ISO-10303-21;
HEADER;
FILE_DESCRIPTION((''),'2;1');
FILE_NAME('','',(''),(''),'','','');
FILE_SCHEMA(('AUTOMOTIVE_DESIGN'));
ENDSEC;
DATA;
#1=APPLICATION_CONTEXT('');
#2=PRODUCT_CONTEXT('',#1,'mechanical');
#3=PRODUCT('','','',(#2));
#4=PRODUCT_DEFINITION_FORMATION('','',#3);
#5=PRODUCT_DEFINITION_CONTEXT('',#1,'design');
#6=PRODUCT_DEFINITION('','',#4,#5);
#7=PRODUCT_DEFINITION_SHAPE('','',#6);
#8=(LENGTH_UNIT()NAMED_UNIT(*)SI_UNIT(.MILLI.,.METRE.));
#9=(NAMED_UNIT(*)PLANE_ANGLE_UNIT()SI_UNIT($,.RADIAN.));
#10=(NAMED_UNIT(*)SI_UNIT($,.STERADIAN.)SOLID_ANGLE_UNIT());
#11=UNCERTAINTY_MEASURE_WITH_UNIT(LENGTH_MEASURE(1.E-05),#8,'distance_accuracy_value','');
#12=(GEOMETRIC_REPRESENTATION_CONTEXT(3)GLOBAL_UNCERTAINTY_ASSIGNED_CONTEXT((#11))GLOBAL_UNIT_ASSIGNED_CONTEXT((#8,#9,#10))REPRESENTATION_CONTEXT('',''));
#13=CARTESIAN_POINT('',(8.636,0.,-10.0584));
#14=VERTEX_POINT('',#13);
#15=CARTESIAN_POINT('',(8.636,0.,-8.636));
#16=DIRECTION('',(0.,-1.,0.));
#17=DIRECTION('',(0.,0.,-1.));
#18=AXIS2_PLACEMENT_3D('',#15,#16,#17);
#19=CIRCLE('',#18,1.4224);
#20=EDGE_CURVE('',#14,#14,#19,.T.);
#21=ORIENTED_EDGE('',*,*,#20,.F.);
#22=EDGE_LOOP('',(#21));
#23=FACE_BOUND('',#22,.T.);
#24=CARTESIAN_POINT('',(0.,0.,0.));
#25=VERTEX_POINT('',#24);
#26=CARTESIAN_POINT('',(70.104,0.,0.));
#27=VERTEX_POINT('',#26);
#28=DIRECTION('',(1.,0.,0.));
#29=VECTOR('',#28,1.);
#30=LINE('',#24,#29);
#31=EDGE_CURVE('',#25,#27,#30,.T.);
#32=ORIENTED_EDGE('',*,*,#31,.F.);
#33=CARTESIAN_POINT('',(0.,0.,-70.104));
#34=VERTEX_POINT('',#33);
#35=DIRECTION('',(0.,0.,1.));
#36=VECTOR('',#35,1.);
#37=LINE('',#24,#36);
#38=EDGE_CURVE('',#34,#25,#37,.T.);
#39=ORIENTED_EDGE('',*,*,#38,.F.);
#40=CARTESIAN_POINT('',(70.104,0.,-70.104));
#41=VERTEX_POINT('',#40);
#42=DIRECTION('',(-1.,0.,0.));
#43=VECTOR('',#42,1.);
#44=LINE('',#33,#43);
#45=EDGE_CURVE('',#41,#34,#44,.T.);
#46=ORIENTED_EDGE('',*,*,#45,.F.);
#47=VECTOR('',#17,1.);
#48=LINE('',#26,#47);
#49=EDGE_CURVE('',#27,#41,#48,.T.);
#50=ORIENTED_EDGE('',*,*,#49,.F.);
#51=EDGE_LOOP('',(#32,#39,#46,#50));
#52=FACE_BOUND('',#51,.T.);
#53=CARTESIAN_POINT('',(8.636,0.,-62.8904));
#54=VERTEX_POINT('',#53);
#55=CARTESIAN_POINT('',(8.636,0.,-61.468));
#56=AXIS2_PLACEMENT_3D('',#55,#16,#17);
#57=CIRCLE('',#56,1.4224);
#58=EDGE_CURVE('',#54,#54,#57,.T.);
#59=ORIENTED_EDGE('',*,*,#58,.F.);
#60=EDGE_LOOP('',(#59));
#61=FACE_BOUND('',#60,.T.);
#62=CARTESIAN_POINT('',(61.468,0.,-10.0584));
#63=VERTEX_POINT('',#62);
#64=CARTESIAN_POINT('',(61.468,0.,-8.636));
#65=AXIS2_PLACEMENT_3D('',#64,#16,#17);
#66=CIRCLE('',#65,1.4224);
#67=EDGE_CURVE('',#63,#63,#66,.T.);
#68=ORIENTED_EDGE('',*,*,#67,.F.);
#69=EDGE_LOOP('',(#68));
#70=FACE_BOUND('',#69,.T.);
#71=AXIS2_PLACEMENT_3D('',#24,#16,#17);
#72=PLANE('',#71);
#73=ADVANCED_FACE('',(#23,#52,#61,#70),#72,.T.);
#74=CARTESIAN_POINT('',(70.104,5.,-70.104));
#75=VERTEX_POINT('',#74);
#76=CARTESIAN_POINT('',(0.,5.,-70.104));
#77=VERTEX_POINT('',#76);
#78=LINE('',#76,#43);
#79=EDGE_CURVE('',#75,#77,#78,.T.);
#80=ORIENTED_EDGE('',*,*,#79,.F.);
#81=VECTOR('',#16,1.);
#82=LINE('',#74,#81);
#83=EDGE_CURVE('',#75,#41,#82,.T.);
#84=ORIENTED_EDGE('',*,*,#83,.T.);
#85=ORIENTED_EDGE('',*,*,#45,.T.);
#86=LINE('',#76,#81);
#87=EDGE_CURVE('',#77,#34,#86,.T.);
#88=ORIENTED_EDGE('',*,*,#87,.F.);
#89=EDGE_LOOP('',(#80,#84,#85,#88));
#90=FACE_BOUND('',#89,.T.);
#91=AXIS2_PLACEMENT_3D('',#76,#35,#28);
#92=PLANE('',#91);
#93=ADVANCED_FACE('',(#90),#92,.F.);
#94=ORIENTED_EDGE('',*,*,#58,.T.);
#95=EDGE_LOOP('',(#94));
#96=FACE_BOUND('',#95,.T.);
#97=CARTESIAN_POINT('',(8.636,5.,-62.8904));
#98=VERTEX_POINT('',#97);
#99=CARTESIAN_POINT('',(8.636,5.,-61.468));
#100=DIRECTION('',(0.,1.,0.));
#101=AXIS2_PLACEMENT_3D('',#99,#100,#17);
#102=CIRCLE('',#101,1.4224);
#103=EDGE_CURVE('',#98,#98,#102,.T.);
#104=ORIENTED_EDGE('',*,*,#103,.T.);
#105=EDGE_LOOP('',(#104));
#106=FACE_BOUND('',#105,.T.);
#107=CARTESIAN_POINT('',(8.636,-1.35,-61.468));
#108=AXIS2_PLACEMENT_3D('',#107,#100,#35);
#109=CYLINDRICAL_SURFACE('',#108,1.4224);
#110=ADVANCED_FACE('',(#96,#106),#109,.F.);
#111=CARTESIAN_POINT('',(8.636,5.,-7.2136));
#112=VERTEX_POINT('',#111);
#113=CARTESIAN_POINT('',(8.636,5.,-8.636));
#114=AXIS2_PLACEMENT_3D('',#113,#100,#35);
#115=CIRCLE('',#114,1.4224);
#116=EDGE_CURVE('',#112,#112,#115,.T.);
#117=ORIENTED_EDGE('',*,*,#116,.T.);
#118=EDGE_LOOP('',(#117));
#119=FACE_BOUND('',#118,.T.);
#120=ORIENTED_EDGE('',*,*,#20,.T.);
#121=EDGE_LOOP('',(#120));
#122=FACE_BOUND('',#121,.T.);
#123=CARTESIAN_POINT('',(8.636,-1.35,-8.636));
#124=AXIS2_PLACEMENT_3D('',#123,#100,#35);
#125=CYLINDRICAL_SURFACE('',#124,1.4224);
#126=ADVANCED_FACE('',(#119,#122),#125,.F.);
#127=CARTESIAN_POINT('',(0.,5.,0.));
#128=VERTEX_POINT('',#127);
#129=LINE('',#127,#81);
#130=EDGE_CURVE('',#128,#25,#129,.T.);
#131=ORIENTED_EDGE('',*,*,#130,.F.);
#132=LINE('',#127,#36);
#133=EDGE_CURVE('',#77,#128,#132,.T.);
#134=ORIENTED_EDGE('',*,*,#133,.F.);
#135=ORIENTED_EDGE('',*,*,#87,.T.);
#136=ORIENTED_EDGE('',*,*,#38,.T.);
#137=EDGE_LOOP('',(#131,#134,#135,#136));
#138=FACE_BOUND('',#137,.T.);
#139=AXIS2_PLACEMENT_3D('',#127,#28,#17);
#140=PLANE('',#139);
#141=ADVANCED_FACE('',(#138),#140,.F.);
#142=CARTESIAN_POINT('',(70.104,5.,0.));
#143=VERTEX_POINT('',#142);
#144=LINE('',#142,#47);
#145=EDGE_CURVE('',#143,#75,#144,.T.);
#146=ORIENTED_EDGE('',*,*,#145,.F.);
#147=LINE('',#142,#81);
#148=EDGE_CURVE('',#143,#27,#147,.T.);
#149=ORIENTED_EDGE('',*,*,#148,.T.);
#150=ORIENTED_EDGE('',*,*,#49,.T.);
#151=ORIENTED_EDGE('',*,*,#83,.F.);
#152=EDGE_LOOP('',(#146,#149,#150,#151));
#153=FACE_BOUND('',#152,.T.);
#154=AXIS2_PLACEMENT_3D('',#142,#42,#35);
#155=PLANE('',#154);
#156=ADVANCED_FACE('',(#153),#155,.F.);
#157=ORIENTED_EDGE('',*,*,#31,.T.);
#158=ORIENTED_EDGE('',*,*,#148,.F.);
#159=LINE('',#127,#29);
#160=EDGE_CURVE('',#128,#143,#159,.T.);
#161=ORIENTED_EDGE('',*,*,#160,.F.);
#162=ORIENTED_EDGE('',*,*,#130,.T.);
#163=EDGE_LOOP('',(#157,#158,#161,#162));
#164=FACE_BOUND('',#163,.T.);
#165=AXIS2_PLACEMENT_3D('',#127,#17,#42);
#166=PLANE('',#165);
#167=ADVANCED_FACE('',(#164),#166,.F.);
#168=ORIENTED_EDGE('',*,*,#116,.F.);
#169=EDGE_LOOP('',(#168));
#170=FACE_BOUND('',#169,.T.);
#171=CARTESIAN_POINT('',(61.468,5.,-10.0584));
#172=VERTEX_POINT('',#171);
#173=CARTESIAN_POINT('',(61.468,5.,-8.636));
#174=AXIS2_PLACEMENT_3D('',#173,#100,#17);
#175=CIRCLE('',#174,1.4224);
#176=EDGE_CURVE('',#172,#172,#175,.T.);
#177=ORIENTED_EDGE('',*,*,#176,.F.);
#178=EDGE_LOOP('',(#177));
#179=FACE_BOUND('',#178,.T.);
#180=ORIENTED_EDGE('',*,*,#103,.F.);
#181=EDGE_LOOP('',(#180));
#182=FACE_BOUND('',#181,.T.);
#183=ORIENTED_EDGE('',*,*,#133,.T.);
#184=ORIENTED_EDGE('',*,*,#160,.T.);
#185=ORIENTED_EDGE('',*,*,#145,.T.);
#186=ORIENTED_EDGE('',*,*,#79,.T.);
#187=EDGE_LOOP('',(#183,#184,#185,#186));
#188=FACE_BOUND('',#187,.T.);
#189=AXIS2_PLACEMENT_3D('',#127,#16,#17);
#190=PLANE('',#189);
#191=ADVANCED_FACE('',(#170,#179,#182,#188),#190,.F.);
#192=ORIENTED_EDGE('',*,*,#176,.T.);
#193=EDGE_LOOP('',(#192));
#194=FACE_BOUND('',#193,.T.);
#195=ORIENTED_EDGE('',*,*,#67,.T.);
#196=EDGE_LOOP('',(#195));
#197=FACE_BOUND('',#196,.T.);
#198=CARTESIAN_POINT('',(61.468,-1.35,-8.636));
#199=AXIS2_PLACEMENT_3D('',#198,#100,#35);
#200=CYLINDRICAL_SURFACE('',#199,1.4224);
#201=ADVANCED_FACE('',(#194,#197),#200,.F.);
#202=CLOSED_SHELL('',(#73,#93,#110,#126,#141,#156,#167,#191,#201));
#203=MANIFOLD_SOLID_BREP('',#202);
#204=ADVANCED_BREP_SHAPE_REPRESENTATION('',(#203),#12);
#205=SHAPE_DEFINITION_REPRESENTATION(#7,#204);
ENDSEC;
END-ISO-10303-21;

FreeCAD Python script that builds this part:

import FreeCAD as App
import Part
import Sketcher
Q = App.Units.Quantity


def add_polygon(sketch, points):
    """Adds a closed chain of lines whose ends are joined by coincident constraints."""
    first, n = sketch.GeometryCount, len(points)
    for a, b in zip(points, points[1:] + points[:1]):
        sketch.addGeometry(Part.LineSegment(App.Vector(*a, 0), App.Vector(*b, 0)), False)
    for i in range(n):
        sketch.addConstraint(Sketcher.Constraint("Coincident", first + i, 2, first + (i + 1) % n, 1))

doc = App.newDocument("Part")
params = doc.addObject("Spreadsheet::Sheet", "Params")
for row, (alias, value) in enumerate([
    ("sketch1_width", "2.76 in"),
    ("pad1_length", "5 mm"),
    ("sketch2_diameter", "0.112 in"),
    ("pocket1_length", "0.25 in"),
], start=1):
    params.set(f"A{row}", alias)
    params.set(f"B{row}", "=" + value)
    params.setAlias(f"B{row}", alias)

body = doc.addObject("PartDesign::Body", "Body")

sketch1 = doc.addObject("Sketcher::SketchObject", "Sketch")
body.addObject(sketch1)
sketch1.AttachmentSupport = (doc.XZ_Plane, [""])
sketch1.MapMode = "FlatFace"
add_polygon(sketch1, [(0, -70), (0, 0), (70, 0), (70, -70)])
sketch1.addConstraint(Sketcher.Constraint("Vertical", 0))
sketch1.addConstraint(Sketcher.Constraint("Horizontal", 1))
sketch1.addConstraint(Sketcher.Constraint("Vertical", 2))
sketch1.addConstraint(Sketcher.Constraint("Horizontal", 3))
sketch1.addConstraint(Sketcher.Constraint("Coincident", 0, 2, -1, 1))
sketch1.addConstraint(Sketcher.Constraint("Equal", 3, 0))
sketch1.addConstraint(Sketcher.Constraint("DistanceX", 1, 1, 1, 2, Q("2.76 in")))
sketch1.setExpression("Constraints[10]", "Params.sketch1_width")
pad1 = doc.addObject("PartDesign::Pad", "Pad")
body.addObject(pad1)
pad1.Profile = sketch1
pad1.setExpression("Length", "Params.pad1_length")
pad1.Reversed = True

sketch2 = doc.addObject("Sketcher::SketchObject", "Sketch001")
body.addObject(sketch2)
sketch2.AttachmentSupport = (doc.XZ_Plane, [""])
sketch2.MapMode = "FlatFace"
sketch2.AttachmentOffset = App.Placement(App.Vector(0, 0, -5), App.Rotation())
sketch2.addGeometry(Part.Circle(App.Vector(8.6, -8.6, 0), App.Vector(0, 0, 1), 1.4), False)
sketch2.addGeometry(Part.Circle(App.Vector(8.6, -61.5, 0), App.Vector(0, 0, 1), 1.4), False)
sketch2.addGeometry(Part.Circle(App.Vector(61.5, -8.6, 0), App.Vector(0, 0, 1), 1.4), False)
sketch2.addConstraint(Sketcher.Constraint("Equal", 0, 1))
sketch2.addConstraint(Sketcher.Constraint("Equal", 1, 2))
sketch2.addConstraint(Sketcher.Constraint("Horizontal", 0, 3, 2, 3))
sketch2.addConstraint(Sketcher.Constraint("Vertical", 0, 3, 1, 3))
sketch2.addConstraint(Sketcher.Constraint("Diameter", 0, Q("0.112 in")))
sketch2.addConstraint(Sketcher.Constraint("DistanceX", -1, 1, 0, 3, Q("0.34 in")))
sketch2.addConstraint(Sketcher.Constraint("DistanceY", 0, 3, -1, 1, Q("0.34 in")))
sketch2.addConstraint(Sketcher.Constraint("DistanceY", 1, 3, -1, 1, Q("2.42 in")))
sketch2.addConstraint(Sketcher.Constraint("DistanceX", -1, 1, 2, 3, Q("2.42 in")))
sketch2.setExpression("Constraints[4]", "Params.sketch2_diameter")
pocket1 = doc.addObject("PartDesign::Pocket", "Pocket")
body.addObject(pocket1)
pocket1.Profile = sketch2
pocket1.setExpression("Length", "Params.pocket1_length")
pocket1.Reversed = True

doc.recompute()
